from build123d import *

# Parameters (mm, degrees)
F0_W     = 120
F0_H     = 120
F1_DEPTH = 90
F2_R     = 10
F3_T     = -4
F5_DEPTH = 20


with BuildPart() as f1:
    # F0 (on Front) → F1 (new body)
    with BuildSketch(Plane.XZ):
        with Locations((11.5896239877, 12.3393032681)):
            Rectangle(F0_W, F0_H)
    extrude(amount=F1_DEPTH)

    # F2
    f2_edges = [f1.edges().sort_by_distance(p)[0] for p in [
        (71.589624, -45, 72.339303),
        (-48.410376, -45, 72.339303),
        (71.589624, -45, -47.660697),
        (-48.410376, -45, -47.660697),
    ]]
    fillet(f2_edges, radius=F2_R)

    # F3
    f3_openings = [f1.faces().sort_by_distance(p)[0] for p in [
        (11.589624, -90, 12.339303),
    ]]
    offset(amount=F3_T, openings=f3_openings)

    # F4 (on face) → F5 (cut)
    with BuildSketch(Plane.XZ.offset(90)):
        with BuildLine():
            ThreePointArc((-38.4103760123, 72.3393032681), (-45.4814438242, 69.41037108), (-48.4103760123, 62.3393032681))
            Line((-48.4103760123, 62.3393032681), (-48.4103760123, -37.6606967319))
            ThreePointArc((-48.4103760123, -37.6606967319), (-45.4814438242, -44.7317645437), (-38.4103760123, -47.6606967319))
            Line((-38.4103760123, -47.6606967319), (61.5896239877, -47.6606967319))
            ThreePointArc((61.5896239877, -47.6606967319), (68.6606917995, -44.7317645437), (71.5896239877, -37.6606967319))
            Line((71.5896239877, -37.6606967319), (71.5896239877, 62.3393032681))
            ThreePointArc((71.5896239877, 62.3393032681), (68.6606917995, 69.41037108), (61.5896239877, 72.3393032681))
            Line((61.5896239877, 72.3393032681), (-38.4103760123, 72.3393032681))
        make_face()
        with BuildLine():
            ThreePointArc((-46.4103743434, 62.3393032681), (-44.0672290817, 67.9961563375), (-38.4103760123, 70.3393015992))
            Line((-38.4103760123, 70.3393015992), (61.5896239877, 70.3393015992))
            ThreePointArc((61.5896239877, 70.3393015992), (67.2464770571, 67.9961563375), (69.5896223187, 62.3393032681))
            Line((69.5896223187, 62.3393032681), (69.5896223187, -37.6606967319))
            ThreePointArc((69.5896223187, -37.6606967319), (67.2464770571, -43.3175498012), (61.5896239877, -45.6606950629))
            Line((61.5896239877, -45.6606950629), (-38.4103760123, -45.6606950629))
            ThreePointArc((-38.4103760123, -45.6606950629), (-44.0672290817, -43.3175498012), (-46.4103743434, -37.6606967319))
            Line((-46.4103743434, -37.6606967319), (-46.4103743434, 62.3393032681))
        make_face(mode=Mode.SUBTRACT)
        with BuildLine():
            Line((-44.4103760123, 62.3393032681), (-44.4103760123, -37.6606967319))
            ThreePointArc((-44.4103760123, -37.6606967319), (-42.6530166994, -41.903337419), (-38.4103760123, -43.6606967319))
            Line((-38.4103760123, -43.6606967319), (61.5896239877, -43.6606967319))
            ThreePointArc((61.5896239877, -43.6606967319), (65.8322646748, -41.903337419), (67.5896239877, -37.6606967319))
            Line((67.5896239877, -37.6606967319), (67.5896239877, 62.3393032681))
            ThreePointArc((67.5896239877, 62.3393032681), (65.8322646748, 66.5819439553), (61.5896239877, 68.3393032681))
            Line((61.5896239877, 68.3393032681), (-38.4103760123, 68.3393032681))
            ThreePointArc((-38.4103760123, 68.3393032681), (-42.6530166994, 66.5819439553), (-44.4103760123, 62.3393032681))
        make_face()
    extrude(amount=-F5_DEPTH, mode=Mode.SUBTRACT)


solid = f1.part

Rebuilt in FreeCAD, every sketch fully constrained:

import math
import FreeCAD as App
import Part
import Sketcher


def edges_at(feature, points):
    """Names of the edges that pass closest to the given points."""
    edges = feature.Shape.Edges
    near = lambda p: min(range(len(edges)), key=lambda i: edges[i].distToShape(Part.Vertex(*p))[0])
    return sorted({f"Edge{near(p) + 1}" for p in points})


def faces_at(feature, points):
    """Names of the faces that lie closest to the given points."""
    faces = feature.Shape.Faces
    near = lambda p: min(range(len(faces)), key=lambda i: faces[i].distToShape(Part.Vertex(*p))[0])
    return sorted({f"Face{near(p) + 1}" for p in points})


def add_polygon(sketch, points):
    """Adds a closed chain of lines whose ends are joined by coincident constraints."""
    first, n = sketch.GeometryCount, len(points)
    for a, b in zip(points, points[1:] + points[:1]):
        sketch.addGeometry(Part.LineSegment(App.Vector(*a, 0), App.Vector(*b, 0)), False)
    for i in range(n):
        sketch.addConstraint(Sketcher.Constraint("Coincident", first + i, 2, first + (i + 1) % n, 1))

doc = App.newDocument("Part")
params = doc.addObject("Spreadsheet::Sheet", "Params")
for row, (alias, value) in enumerate([
    ("sketch1_width", "120 mm"),
    ("pad1_length", "90 mm"),
    ("fillet_radius", "10 mm"),
    ("thickness_wall", "4 mm"),
    ("sketch2_radius", "10 mm"),
    ("sketch2_radius2", "7.999998 mm"),
    ("sketch2_radius3", "6 mm"),
    ("sketch2_width", "100 mm"),
    ("pocket1_length", "20 mm"),
], start=1):
    params.set(f"A{row}", alias)
    params.set(f"B{row}", "=" + value)
    params.setAlias(f"B{row}", alias)

body = doc.addObject("PartDesign::Body", "Body")

sketch1 = body.newObject("Sketcher::SketchObject", "Sketch")
sketch1.AttachmentSupport = (doc.getObject("XZ_Plane"), [""])
sketch1.MapMode = "FlatFace"
add_polygon(sketch1, [(-48, 72), (-48, -48), (72, -48), (72, 72)])
sketch1.addConstraint([
    Sketcher.Constraint("Vertical", 0),
    Sketcher.Constraint("Horizontal", 1),
    Sketcher.Constraint("Vertical", 2),
    Sketcher.Constraint("Horizontal", 3),
    Sketcher.Constraint("Equal", 3, 0),
    Sketcher.Constraint("DistanceX", 1, 1, 1, 2, 120.0),
    Sketcher.Constraint("DistanceX", 0, 2, -1, 1, 48.410376),
    Sketcher.Constraint("DistanceY", 0, 2, -1, 1, 47.660697),
])
sketch1.setExpression("Constraints[9]", "Params.sketch1_width")
pad1 = body.newObject("PartDesign::Pad", "Pad")
pad1.Profile = sketch1
pad1.setExpression("Length", "Params.pad1_length")
doc.recompute()

fillet = body.newObject("PartDesign::Fillet", "Fillet")
fillet.Base = (pad1, edges_at(pad1, [
    (71.59, -45, 72.339),
    (-48.41, -45, 72.339),
    (71.59, -45, -47.661),
    (-48.41, -45, -47.661),
]))
fillet.setExpression("Radius", "Params.fillet_radius")
doc.recompute()

thickness = body.newObject("PartDesign::Thickness", "Thickness")
thickness.Base = (fillet, faces_at(fillet, [(11.59, -90, 12.339)]))
thickness.setExpression("Value", "Params.thickness_wall")
thickness.Reversed = True
thickness.Join = "Arc"

sketch2 = body.newObject("Sketcher::SketchObject", "Sketch001")
sketch2.AttachmentSupport = (doc.getObject("XZ_Plane"), [""])
sketch2.MapMode = "FlatFace"
sketch2.AttachmentOffset = App.Placement(App.Vector(0, 0, 90), App.Rotation())
sketch2.addGeometry([
    Part.ArcOfCircle(Part.Circle(App.Vector(-38, 62, 0), App.Vector(0, 0, 1), 10), math.radians(90), math.radians(180)),
    Part.LineSegment(App.Vector(-48, 62, 0), App.Vector(-48, -38, 0)),
    Part.ArcOfCircle(Part.Circle(App.Vector(-38, -38, 0), App.Vector(0, 0, 1), 10), math.radians(180), math.radians(270)),
    Part.LineSegment(App.Vector(-38, -48, 0), App.Vector(62, -48, 0)),
    Part.ArcOfCircle(Part.Circle(App.Vector(62, -38, 0), App.Vector(0, 0, 1), 10), math.radians(-90), math.radians(0)),
    Part.LineSegment(App.Vector(72, -38, 0), App.Vector(72, 62, 0)),
    Part.ArcOfCircle(Part.Circle(App.Vector(62, 62, 0), App.Vector(0, 0, 1), 10), math.radians(0), math.radians(90)),
    Part.LineSegment(App.Vector(62, 72, 0), App.Vector(-38, 72, 0)),
    Part.LineSegment(App.Vector(-46, -38, 0), App.Vector(-46, 62, 0)),
    Part.ArcOfCircle(Part.Circle(App.Vector(-38, 62, 0), App.Vector(0, 0, 1), 8), math.radians(90), math.radians(180)),
    Part.LineSegment(App.Vector(-38, 70, 0), App.Vector(62, 70, 0)),
    Part.ArcOfCircle(Part.Circle(App.Vector(62, 62, 0), App.Vector(0, 0, 1), 8), math.radians(0), math.radians(90)),
    Part.LineSegment(App.Vector(70, 62, 0), App.Vector(70, -38, 0)),
    Part.ArcOfCircle(Part.Circle(App.Vector(62, -38, 0), App.Vector(0, 0, 1), 8), math.radians(-90), math.radians(0)),
    Part.LineSegment(App.Vector(62, -46, 0), App.Vector(-38, -46, 0)),
    Part.ArcOfCircle(Part.Circle(App.Vector(-38, -38, 0), App.Vector(0, 0, 1), 8), math.radians(180), math.radians(270)),
    Part.LineSegment(App.Vector(-44, 62, 0), App.Vector(-44, -38, 0)),
    Part.ArcOfCircle(Part.Circle(App.Vector(-38, -38, 0), App.Vector(0, 0, 1), 6), math.radians(180), math.radians(270)),
    Part.LineSegment(App.Vector(-38, -44, 0), App.Vector(62, -44, 0)),
    Part.ArcOfCircle(Part.Circle(App.Vector(62, -38, 0), App.Vector(0, 0, 1), 6), math.radians(-90), math.radians(0)),
    Part.LineSegment(App.Vector(68, -38, 0), App.Vector(68, 62, 0)),
    Part.ArcOfCircle(Part.Circle(App.Vector(62, 62, 0), App.Vector(0, 0, 1), 6), math.radians(0), math.radians(90)),
    Part.LineSegment(App.Vector(62, 68, 0), App.Vector(-38, 68, 0)),
    Part.ArcOfCircle(Part.Circle(App.Vector(-38, 62, 0), App.Vector(0, 0, 1), 6), math.radians(90), math.radians(180)),
], False)
sketch2.addConstraint([
    Sketcher.Constraint("Tangent", 0, 2, 1, 1),
    Sketcher.Constraint("Tangent", 1, 2, 2, 1),
    Sketcher.Constraint("Tangent", 2, 2, 3, 1),
    Sketcher.Constraint("Tangent", 3, 2, 4, 1),
    Sketcher.Constraint("Tangent", 4, 2, 5, 1),
    Sketcher.Constraint("Tangent", 5, 2, 6, 1),
    Sketcher.Constraint("Tangent", 6, 2, 7, 1),
    Sketcher.Constraint("Tangent", 7, 2, 0, 1),
    Sketcher.Constraint("Tangent", 8, 2, 9, 2),
    Sketcher.Constraint("Tangent", 9, 1, 10, 1),
    Sketcher.Constraint("Tangent", 10, 2, 11, 2),
    Sketcher.Constraint("Tangent", 11, 1, 12, 1),
    Sketcher.Constraint("Tangent", 12, 2, 13, 2),
    Sketcher.Constraint("Tangent", 13, 1, 14, 1),
    Sketcher.Constraint("Tangent", 14, 2, 15, 2),
    Sketcher.Constraint("Tangent", 15, 1, 8, 1),
    Sketcher.Constraint("Tangent", 16, 2, 17, 1),
    Sketcher.Constraint("Tangent", 17, 2, 18, 1),
    Sketcher.Constraint("Tangent", 18, 2, 19, 1),
    Sketcher.Constraint("Tangent", 19, 2, 20, 1),
    Sketcher.Constraint("Tangent", 20, 2, 21, 1),
    Sketcher.Constraint("Tangent", 21, 2, 22, 1),
    Sketcher.Constraint("Tangent", 22, 2, 23, 1),
    Sketcher.Constraint("Tangent", 23, 2, 16, 1),
    Sketcher.Constraint("Vertical", 1),
    Sketcher.Constraint("Horizontal", 3),
    Sketcher.Constraint("Vertical", 5),
    Sketcher.Constraint("Horizontal", 7),
    Sketcher.Constraint("Vertical", 8),
    Sketcher.Constraint("Horizontal", 10),
    Sketcher.Constraint("Vertical", 12),
    Sketcher.Constraint("Horizontal", 14),
    Sketcher.Constraint("Vertical", 16),
    Sketcher.Constraint("Horizontal", 18),
    Sketcher.Constraint("Vertical", 20),
    Sketcher.Constraint("Horizontal", 22),
    Sketcher.Constraint("Coincident", 9, 3, 0, 3),
    Sketcher.Constraint("Coincident", 11, 3, 6, 3),
    Sketcher.Constraint("Coincident", 13, 3, 4, 3),
    Sketcher.Constraint("Coincident", 17, 3, 2, 3),
    Sketcher.Constraint("Coincident", 19, 3, 4, 3),
    Sketcher.Constraint("Coincident", 21, 3, 6, 3),
    Sketcher.Constraint("Equal", 0, 2),
    Sketcher.Constraint("Equal", 2, 4),
    Sketcher.Constraint("Equal", 4, 6),
    Sketcher.Constraint("Equal", 13, 15),
    Sketcher.Constraint("Equal", 21, 23),
    Sketcher.Constraint("Equal", 22, 1),
    Sketcher.Constraint("Radius", 0, 10.0),
    Sketcher.Constraint("Radius", 9, 7.999998),
    Sketcher.Constraint("Radius", 17, 6.0),
    Sketcher.Constraint("DistanceX", 3, 1, 3, 2, 100.0),
    Sketcher.Constraint("DistanceY", -1, 1, 9, 1, 70.339302),
    Sketcher.Constraint("DistanceX", 0, 3, -1, 1, 38.410376),
])
sketch2.setExpression("Constraints[48]", "Params.sketch2_radius")
sketch2.setExpression("Constraints[49]", "Params.sketch2_radius2")
sketch2.setExpression("Constraints[50]", "Params.sketch2_radius3")
sketch2.setExpression("Constraints[51]", "Params.sketch2_width")
pocket1 = body.newObject("PartDesign::Pocket", "Pocket")
pocket1.Profile = sketch2
pocket1.setExpression("Length", "Params.pocket1_length")

doc.recompute()
